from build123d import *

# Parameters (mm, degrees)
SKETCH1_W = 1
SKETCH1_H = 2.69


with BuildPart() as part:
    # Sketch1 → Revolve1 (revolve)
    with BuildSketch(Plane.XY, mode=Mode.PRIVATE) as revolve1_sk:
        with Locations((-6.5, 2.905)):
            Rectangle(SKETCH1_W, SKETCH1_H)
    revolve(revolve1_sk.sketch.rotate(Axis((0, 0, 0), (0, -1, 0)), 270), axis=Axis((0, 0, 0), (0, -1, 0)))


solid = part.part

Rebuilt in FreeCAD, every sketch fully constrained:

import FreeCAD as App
import Part
import Sketcher


def add_polygon(sketch, points):
    """Adds a closed chain of lines whose ends are joined by coincident constraints."""
    first, n = sketch.GeometryCount, len(points)
    for a, b in zip(points, points[1:] + points[:1]):
        sketch.addGeometry(Part.LineSegment(App.Vector(*a, 0), App.Vector(*b, 0)), False)
    for i in range(n):
        sketch.addConstraint(Sketcher.Constraint("Coincident", first + i, 2, first + (i + 1) % n, 1))

doc = App.newDocument("Part")
body = doc.addObject("PartDesign::Body", "Body")

# Sketch on XY plane
sketch1 = body.newObject("Sketcher::SketchObject", "Sketch")
sketch1.AttachmentSupport = (doc.getObject("XY_Plane"), [""])
sketch1.MapMode = "FlatFace"
add_polygon(sketch1, [(-7, 4.2), (-7, 1.6), (-6, 1.6), (-6, 4.2)])  # lines 0-3
sketch1.addConstraint([
    Sketcher.Constraint("Vertical", 0),
    Sketcher.Constraint("Horizontal", 1),
    Sketcher.Constraint("Vertical", 2),
    Sketcher.Constraint("Horizontal", 3),
    Sketcher.Constraint("DistanceX", 1, 1, 1, 2, 1.0),
    Sketcher.Constraint("DistanceX", 0, 2, -1, 1, 7.0),
    Sketcher.Constraint("DistanceY", 0, 2, 0, 1, 2.69),
    Sketcher.Constraint("DistanceY", -1, 1, 0, 2, 1.56),
])
revolution = body.newObject("PartDesign::Revolution", "Revolution")
revolution.Profile = sketch1
revolution.ReferenceAxis = (sketch1, ["V_Axis"])
revolution.Angle = 360

doc.recompute()
